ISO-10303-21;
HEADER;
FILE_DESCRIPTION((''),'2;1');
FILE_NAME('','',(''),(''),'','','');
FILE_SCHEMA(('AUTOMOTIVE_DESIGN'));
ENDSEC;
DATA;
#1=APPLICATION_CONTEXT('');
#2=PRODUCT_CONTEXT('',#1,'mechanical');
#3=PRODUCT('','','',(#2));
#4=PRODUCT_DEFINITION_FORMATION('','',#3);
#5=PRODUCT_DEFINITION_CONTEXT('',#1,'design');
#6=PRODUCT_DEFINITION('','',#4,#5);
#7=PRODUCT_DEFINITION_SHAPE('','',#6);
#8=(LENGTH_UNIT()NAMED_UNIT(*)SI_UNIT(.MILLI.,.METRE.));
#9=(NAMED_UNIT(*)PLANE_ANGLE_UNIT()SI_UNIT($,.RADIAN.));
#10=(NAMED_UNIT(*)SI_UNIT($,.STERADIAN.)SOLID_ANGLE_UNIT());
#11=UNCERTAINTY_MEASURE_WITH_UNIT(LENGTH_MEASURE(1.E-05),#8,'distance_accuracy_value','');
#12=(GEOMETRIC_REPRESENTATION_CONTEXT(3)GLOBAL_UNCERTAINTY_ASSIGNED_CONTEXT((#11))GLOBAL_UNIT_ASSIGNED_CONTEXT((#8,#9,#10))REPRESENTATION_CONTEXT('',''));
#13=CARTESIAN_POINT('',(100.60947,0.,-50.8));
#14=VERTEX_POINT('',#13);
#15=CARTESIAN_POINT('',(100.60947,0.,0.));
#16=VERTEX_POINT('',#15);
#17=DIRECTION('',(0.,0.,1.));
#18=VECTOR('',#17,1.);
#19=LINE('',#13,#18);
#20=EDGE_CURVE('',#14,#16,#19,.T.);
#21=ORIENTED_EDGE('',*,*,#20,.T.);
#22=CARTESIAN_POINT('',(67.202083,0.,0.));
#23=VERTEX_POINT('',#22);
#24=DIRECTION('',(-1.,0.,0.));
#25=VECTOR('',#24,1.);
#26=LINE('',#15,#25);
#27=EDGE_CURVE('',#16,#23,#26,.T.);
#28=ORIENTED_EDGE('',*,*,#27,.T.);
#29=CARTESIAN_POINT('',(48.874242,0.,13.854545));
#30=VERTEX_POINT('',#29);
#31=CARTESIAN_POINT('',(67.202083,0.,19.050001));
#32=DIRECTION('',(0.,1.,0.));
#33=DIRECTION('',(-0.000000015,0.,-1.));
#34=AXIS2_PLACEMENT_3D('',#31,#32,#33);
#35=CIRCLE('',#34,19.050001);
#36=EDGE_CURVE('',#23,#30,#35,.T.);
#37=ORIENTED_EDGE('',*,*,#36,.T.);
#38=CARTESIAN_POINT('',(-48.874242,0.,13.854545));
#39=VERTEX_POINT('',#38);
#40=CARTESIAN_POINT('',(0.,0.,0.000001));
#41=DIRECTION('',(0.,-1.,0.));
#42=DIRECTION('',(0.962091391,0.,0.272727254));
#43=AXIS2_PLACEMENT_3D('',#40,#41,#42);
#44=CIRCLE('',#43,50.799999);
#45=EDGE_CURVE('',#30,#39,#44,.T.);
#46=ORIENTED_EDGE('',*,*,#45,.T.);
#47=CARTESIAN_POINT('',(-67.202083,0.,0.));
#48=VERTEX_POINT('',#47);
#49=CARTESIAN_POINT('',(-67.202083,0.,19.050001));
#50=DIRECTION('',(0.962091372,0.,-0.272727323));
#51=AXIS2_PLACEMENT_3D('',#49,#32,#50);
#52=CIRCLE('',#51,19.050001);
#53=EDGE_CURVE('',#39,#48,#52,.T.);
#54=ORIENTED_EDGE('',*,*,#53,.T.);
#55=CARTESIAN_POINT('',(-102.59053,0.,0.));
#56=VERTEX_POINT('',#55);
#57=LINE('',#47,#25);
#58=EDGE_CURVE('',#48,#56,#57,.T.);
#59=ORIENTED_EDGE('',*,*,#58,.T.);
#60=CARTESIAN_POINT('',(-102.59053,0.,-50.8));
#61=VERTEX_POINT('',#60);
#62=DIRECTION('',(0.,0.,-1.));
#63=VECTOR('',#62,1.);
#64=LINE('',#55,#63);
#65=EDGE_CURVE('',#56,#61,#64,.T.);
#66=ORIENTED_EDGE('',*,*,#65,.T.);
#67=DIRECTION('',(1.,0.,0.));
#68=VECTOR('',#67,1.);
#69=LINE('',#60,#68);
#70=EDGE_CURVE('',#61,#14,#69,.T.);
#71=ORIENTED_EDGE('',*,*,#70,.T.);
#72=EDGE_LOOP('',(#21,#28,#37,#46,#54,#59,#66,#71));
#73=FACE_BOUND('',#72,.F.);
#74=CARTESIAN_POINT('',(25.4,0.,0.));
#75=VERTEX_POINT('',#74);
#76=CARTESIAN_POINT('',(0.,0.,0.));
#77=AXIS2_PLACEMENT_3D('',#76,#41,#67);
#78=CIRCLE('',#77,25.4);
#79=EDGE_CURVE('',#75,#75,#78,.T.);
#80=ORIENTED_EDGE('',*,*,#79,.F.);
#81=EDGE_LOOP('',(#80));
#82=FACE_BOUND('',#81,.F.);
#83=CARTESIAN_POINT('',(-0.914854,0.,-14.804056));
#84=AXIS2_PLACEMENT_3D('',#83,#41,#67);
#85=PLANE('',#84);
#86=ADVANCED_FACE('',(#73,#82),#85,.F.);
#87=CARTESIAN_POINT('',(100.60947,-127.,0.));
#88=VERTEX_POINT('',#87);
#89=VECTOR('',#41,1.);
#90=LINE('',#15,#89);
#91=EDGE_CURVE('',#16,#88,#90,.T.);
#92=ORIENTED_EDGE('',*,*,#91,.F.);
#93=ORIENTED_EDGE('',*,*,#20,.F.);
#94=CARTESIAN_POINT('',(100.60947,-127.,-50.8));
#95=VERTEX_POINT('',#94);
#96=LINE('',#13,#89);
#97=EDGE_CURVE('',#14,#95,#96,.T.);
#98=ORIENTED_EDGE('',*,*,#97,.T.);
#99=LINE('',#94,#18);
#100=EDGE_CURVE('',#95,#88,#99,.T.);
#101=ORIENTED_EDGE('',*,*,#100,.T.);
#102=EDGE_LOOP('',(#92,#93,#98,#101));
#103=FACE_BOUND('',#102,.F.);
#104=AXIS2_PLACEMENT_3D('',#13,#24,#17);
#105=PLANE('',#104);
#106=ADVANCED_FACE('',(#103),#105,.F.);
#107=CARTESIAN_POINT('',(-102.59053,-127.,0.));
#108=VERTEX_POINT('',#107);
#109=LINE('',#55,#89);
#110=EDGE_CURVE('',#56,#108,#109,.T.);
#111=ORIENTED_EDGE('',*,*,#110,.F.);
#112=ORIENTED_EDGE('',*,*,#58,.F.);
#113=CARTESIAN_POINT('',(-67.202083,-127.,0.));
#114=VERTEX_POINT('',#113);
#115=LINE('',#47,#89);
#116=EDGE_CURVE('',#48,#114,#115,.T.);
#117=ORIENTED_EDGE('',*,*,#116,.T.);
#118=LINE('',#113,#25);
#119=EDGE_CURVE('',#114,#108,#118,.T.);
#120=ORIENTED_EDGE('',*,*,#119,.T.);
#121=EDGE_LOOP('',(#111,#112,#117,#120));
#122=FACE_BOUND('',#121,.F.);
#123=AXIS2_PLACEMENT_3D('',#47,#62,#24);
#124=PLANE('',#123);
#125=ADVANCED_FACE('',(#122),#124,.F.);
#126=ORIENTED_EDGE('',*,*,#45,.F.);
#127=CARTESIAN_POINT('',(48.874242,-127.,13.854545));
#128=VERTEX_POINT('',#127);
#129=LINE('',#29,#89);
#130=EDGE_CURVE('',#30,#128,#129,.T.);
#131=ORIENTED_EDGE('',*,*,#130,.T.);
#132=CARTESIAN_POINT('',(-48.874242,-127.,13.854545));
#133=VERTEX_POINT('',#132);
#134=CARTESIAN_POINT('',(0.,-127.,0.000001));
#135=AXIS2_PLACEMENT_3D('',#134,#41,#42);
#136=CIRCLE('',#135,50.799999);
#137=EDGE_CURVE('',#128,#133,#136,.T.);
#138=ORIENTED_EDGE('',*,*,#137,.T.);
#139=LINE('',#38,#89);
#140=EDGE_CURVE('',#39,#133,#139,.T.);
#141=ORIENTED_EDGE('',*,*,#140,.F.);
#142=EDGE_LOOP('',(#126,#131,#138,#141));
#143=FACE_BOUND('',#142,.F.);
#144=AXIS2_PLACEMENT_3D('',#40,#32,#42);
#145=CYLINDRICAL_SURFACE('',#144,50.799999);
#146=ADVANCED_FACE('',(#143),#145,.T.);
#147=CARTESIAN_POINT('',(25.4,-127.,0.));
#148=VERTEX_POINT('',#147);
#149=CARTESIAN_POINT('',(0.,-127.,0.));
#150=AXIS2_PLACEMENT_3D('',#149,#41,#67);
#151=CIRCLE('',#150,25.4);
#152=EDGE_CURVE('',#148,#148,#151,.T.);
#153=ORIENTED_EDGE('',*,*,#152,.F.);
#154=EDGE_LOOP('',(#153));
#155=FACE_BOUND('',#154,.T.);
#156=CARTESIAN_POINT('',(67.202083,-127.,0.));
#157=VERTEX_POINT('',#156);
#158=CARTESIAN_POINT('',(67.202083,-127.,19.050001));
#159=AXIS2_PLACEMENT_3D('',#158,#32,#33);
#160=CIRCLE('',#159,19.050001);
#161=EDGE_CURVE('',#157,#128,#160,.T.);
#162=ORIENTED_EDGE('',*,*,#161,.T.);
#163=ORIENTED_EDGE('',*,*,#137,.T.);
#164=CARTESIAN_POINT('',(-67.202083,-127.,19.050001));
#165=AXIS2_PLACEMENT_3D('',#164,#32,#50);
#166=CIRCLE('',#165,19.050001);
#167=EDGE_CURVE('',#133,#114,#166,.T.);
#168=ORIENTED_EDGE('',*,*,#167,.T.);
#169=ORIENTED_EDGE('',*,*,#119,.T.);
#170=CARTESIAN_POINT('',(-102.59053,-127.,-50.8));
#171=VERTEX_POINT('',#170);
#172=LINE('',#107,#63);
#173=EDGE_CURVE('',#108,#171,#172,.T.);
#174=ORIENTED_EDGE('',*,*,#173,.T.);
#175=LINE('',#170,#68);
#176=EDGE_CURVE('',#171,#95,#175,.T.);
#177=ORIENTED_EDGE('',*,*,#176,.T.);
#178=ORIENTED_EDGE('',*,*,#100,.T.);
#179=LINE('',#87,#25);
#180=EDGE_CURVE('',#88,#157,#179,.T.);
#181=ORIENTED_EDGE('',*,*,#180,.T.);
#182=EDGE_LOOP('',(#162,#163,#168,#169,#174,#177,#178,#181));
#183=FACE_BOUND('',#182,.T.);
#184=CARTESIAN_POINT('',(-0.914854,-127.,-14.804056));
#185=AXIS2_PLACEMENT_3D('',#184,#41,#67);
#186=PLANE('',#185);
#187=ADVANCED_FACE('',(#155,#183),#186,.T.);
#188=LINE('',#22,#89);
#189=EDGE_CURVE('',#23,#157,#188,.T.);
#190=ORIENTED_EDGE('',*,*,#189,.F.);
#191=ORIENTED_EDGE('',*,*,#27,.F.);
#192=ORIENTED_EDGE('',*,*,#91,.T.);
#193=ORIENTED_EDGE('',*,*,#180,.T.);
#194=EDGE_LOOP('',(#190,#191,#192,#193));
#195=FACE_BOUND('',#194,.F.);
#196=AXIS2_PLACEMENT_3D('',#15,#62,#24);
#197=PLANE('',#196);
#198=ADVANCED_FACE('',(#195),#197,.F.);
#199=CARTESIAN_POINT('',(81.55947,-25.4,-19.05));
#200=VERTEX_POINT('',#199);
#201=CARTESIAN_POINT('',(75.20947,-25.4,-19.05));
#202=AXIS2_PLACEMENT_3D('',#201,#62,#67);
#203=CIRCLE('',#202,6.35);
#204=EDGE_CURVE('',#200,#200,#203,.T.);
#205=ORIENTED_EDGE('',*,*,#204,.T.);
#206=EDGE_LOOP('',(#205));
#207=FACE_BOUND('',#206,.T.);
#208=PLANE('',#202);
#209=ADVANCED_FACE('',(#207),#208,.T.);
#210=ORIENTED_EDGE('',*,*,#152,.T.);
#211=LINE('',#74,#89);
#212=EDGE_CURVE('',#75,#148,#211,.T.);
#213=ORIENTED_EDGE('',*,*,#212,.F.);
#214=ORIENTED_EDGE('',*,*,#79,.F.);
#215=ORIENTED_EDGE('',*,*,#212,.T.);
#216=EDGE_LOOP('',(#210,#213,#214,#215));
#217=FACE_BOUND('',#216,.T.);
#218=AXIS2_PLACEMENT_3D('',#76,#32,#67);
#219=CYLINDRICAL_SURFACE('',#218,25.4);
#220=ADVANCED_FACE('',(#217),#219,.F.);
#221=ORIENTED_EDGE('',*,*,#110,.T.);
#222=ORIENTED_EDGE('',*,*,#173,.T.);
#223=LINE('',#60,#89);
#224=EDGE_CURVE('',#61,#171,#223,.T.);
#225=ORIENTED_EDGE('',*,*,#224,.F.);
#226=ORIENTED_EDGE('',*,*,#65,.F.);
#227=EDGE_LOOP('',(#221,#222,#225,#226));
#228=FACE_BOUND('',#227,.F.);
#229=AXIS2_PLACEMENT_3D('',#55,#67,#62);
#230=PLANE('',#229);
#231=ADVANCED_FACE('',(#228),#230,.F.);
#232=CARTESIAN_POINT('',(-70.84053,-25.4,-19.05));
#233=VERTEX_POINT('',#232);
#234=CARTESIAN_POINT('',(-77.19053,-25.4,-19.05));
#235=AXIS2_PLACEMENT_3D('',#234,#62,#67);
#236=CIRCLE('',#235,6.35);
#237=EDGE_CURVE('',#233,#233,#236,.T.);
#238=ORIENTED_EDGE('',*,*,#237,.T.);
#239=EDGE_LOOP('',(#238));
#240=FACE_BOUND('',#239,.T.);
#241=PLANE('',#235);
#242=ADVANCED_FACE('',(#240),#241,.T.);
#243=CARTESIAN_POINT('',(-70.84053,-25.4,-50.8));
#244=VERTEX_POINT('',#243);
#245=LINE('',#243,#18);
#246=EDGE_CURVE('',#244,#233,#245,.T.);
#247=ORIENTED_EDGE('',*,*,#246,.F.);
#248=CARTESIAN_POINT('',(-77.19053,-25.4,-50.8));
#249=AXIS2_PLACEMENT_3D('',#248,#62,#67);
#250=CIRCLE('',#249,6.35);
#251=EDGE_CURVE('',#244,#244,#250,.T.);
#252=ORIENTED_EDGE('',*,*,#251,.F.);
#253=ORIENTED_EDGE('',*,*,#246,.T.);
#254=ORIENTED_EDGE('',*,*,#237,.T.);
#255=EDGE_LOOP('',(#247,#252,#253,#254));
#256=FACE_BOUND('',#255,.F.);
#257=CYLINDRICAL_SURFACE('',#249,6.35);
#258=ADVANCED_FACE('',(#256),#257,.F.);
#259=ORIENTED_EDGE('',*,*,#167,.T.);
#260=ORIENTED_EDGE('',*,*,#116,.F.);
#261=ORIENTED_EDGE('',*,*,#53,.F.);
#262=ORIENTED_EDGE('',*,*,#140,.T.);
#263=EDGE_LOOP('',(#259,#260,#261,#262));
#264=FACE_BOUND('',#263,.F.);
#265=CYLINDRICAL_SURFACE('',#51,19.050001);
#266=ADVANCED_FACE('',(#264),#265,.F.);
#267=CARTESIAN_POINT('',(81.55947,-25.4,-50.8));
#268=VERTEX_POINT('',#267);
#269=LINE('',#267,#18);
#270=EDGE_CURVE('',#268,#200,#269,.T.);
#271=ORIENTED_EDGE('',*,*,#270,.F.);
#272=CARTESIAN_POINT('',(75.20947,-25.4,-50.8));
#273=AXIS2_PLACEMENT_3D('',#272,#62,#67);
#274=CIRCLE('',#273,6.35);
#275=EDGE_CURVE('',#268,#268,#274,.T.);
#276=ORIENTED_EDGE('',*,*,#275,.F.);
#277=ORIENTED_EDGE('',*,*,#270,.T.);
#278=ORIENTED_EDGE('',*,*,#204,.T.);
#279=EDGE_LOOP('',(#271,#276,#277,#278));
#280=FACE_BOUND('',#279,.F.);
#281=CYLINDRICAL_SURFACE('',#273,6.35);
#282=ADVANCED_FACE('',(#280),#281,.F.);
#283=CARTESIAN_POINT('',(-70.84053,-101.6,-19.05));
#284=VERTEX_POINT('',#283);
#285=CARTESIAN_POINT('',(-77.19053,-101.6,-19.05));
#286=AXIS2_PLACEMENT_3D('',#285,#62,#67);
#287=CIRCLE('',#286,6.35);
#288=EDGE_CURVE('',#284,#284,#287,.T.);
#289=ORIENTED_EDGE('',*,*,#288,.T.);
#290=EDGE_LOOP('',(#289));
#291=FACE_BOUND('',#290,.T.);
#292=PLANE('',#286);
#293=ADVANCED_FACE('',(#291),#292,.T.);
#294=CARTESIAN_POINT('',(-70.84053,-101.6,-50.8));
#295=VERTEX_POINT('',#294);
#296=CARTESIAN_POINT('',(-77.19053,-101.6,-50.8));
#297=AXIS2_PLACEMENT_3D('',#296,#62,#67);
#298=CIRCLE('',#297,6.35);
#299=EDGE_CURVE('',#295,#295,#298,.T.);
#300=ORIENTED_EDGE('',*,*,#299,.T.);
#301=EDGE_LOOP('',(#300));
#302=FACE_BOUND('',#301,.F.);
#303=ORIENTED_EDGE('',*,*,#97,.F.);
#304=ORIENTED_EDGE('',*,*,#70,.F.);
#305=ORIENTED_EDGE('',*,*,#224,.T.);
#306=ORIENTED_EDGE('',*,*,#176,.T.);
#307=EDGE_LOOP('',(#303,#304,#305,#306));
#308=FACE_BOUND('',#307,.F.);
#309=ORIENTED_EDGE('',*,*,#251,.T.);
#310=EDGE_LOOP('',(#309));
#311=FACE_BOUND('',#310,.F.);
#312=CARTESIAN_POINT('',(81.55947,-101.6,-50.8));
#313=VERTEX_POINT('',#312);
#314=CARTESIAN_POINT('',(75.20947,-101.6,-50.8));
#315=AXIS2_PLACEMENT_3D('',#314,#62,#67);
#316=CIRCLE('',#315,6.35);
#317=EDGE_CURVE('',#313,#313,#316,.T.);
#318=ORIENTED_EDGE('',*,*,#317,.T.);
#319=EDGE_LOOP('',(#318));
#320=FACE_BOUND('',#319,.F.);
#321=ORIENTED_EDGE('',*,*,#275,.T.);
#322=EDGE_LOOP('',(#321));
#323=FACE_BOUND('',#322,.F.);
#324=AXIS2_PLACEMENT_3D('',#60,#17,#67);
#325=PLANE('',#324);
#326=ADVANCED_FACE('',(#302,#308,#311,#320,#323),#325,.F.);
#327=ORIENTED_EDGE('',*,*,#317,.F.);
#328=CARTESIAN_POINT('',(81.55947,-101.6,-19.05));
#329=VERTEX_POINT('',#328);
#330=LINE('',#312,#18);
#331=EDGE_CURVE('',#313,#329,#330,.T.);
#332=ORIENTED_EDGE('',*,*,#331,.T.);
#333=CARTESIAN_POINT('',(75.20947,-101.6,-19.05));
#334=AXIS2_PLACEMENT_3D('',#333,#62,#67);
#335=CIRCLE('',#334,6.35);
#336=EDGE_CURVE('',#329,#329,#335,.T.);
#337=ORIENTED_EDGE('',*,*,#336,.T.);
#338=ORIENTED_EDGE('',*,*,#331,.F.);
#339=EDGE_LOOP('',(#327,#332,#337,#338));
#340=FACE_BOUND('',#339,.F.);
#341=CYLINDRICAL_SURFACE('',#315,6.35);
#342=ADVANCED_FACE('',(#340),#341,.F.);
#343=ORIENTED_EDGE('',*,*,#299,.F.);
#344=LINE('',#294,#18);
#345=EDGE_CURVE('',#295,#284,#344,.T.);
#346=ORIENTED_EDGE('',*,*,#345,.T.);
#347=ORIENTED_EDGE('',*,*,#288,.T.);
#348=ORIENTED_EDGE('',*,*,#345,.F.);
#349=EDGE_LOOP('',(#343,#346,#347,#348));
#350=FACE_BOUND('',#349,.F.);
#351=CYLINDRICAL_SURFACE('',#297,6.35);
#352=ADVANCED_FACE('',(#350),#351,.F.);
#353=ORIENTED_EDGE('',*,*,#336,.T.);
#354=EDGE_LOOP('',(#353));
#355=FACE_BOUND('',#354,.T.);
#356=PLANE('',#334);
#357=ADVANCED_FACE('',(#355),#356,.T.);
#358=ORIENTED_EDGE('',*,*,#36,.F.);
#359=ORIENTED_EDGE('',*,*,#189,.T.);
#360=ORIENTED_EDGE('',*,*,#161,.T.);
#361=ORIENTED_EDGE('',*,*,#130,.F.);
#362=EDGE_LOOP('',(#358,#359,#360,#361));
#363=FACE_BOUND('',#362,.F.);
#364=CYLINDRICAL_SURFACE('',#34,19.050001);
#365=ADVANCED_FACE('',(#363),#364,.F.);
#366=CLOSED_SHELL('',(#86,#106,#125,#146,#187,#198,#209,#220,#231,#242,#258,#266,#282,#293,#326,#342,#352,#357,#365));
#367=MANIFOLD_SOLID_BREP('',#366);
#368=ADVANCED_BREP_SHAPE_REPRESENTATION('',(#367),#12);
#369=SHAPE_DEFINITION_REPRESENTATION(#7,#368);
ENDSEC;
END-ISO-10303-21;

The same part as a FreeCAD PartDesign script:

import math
import FreeCAD as App
import Part
import Sketcher
from FreeCAD import Vector
Q = App.Units.Quantity

doc = App.newDocument("Part")
body = doc.addObject("PartDesign::Body", "Body")

# Sketch on XZ plane
sketch1 = body.newObject("Sketcher::SketchObject", "Sketch")
sketch1.AttachmentSupport = (doc.getObject("XZ_Plane"), [""])
sketch1.MapMode = "FlatFace"
sketch1.addGeometry([
    Part.LineSegment(Vector(101, -51, 0), Vector(101, 0, 0)),  # 0
    Part.LineSegment(Vector(101, 0, 0), Vector(67, 0, 0)),  # 1
    Part.ArcOfCircle(Part.Circle(Vector(67, 19, 0), Vector(0, 0, 1), 19), math.radians(-164), math.radians(-90)),  # 2
    Part.ArcOfCircle(Part.Circle(Vector(0, 0, 0), Vector(0, 0, 1), 51), math.radians(16), math.radians(164)),  # 3
    Part.ArcOfCircle(Part.Circle(Vector(-67, 19, 0), Vector(0, 0, 1), 19), math.radians(-90), math.radians(-16)),  # 4
    Part.LineSegment(Vector(-67, 0, 0), Vector(-103, 0, 0)),  # 5
    Part.LineSegment(Vector(-103, 0, 0), Vector(-103, -51, 0)),  # 6
    Part.LineSegment(Vector(-103, -51, 0), Vector(101, -51, 0)),  # 7
    Part.Circle(Vector(0, 0, 0), Vector(0, 0, 1), 25),  # 8
], False)
sketch1.addConstraint([
    Sketcher.Constraint("Coincident", 0, 2, 1, 1),
    Sketcher.Constraint("Tangent", 1, 2, 2, 2),
    Sketcher.Constraint("Tangent", 2, 1, 3, 1),
    Sketcher.Constraint("Tangent", 3, 2, 4, 2),
    Sketcher.Constraint("Tangent", 4, 1, 5, 1),
    Sketcher.Constraint("Coincident", 5, 2, 6, 1),
    Sketcher.Constraint("Coincident", 6, 2, 7, 1),
    Sketcher.Constraint("Coincident", 7, 2, 0, 1),
    Sketcher.Constraint("Vertical", 0),
    Sketcher.Constraint("Horizontal", 1),
    Sketcher.Constraint("Horizontal", 5),
    Sketcher.Constraint("Vertical", 6),
    Sketcher.Constraint("Horizontal", 7),
    Sketcher.Constraint("Coincident", 3, 3, -1, 1),
    Sketcher.Constraint("Coincident", 8, 3, -1, 1),
    Sketcher.Constraint("Equal", 2, 4),
    Sketcher.Constraint("Symmetric", 1, 2, 4, 1, -1, 1),
    Sketcher.Constraint("Diameter", 8, Q("2 in")),
    Sketcher.Constraint("Radius", 3, Q("2 in")),
    Sketcher.Constraint("DistanceX", 7, 1, 7, 2, Q("8 in")),
    Sketcher.Constraint("DistanceY", 0, 1, 0, 2, Q("2 in")),
    Sketcher.Constraint("Radius", 2, Q("0.75 in")),
    Sketcher.Constraint("DistanceX", 1, 2, 1, 1, Q("33.407387 mm")),
])
pad1 = body.newObject("PartDesign::Pad", "Pad")
pad1.Profile = sketch1
pad1.Length = Q("5 in")

# Sketch on XY plane
sketch2 = body.newObject("Sketcher::SketchObject", "Sketch001")
sketch2.AttachmentSupport = (doc.getObject("XY_Plane"), [""])
sketch2.MapMode = "FlatFace"
sketch2.AttachmentOffset = App.Placement(Vector(0, 0, -2 * 25.4), App.Rotation())
sketch2.addGeometry([
    Part.Circle(Vector(-77, -102, 0), Vector(0, 0, 1), 6),
    Part.Circle(Vector(75, -102, 0), Vector(0, 0, 1), 6),
    Part.Circle(Vector(75, -25, 0), Vector(0, 0, 1), 6),
    Part.Circle(Vector(-77, -25, 0), Vector(0, 0, 1), 6),
], False)
sketch2.addConstraint([
    Sketcher.Constraint("Equal", 0, 1),
    Sketcher.Constraint("Equal", 1, 2),
    Sketcher.Constraint("Equal", 2, 3),
    Sketcher.Constraint("Horizontal", 0, 3, 1, 3),
    Sketcher.Constraint("Horizontal", 2, 3, 3, 3),
    Sketcher.Constraint("Vertical", 1, 3, 2, 3),
    Sketcher.Constraint("Vertical", 0, 3, 3, 3),
    Sketcher.Constraint("Diameter", 0, Q("0.5 in")),
    Sketcher.Constraint("DistanceY", 0, 3, -1, 1, Q("4 in")),
    Sketcher.Constraint("DistanceY", 2, 3, -1, 1, Q("1 in")),
    Sketcher.Constraint("DistanceX", 0, 3, 1, 3, Q("6 in")),
    Sketcher.Constraint("DistanceX", 0, 3, -1, 1, Q("77.19053 mm")),
])
pocket1 = body.newObject("PartDesign::Pocket", "Pocket")
pocket1.Profile = sketch2
pocket1.Length = Q("1.25 in")
pocket1.Reversed = True

doc.recompute()
